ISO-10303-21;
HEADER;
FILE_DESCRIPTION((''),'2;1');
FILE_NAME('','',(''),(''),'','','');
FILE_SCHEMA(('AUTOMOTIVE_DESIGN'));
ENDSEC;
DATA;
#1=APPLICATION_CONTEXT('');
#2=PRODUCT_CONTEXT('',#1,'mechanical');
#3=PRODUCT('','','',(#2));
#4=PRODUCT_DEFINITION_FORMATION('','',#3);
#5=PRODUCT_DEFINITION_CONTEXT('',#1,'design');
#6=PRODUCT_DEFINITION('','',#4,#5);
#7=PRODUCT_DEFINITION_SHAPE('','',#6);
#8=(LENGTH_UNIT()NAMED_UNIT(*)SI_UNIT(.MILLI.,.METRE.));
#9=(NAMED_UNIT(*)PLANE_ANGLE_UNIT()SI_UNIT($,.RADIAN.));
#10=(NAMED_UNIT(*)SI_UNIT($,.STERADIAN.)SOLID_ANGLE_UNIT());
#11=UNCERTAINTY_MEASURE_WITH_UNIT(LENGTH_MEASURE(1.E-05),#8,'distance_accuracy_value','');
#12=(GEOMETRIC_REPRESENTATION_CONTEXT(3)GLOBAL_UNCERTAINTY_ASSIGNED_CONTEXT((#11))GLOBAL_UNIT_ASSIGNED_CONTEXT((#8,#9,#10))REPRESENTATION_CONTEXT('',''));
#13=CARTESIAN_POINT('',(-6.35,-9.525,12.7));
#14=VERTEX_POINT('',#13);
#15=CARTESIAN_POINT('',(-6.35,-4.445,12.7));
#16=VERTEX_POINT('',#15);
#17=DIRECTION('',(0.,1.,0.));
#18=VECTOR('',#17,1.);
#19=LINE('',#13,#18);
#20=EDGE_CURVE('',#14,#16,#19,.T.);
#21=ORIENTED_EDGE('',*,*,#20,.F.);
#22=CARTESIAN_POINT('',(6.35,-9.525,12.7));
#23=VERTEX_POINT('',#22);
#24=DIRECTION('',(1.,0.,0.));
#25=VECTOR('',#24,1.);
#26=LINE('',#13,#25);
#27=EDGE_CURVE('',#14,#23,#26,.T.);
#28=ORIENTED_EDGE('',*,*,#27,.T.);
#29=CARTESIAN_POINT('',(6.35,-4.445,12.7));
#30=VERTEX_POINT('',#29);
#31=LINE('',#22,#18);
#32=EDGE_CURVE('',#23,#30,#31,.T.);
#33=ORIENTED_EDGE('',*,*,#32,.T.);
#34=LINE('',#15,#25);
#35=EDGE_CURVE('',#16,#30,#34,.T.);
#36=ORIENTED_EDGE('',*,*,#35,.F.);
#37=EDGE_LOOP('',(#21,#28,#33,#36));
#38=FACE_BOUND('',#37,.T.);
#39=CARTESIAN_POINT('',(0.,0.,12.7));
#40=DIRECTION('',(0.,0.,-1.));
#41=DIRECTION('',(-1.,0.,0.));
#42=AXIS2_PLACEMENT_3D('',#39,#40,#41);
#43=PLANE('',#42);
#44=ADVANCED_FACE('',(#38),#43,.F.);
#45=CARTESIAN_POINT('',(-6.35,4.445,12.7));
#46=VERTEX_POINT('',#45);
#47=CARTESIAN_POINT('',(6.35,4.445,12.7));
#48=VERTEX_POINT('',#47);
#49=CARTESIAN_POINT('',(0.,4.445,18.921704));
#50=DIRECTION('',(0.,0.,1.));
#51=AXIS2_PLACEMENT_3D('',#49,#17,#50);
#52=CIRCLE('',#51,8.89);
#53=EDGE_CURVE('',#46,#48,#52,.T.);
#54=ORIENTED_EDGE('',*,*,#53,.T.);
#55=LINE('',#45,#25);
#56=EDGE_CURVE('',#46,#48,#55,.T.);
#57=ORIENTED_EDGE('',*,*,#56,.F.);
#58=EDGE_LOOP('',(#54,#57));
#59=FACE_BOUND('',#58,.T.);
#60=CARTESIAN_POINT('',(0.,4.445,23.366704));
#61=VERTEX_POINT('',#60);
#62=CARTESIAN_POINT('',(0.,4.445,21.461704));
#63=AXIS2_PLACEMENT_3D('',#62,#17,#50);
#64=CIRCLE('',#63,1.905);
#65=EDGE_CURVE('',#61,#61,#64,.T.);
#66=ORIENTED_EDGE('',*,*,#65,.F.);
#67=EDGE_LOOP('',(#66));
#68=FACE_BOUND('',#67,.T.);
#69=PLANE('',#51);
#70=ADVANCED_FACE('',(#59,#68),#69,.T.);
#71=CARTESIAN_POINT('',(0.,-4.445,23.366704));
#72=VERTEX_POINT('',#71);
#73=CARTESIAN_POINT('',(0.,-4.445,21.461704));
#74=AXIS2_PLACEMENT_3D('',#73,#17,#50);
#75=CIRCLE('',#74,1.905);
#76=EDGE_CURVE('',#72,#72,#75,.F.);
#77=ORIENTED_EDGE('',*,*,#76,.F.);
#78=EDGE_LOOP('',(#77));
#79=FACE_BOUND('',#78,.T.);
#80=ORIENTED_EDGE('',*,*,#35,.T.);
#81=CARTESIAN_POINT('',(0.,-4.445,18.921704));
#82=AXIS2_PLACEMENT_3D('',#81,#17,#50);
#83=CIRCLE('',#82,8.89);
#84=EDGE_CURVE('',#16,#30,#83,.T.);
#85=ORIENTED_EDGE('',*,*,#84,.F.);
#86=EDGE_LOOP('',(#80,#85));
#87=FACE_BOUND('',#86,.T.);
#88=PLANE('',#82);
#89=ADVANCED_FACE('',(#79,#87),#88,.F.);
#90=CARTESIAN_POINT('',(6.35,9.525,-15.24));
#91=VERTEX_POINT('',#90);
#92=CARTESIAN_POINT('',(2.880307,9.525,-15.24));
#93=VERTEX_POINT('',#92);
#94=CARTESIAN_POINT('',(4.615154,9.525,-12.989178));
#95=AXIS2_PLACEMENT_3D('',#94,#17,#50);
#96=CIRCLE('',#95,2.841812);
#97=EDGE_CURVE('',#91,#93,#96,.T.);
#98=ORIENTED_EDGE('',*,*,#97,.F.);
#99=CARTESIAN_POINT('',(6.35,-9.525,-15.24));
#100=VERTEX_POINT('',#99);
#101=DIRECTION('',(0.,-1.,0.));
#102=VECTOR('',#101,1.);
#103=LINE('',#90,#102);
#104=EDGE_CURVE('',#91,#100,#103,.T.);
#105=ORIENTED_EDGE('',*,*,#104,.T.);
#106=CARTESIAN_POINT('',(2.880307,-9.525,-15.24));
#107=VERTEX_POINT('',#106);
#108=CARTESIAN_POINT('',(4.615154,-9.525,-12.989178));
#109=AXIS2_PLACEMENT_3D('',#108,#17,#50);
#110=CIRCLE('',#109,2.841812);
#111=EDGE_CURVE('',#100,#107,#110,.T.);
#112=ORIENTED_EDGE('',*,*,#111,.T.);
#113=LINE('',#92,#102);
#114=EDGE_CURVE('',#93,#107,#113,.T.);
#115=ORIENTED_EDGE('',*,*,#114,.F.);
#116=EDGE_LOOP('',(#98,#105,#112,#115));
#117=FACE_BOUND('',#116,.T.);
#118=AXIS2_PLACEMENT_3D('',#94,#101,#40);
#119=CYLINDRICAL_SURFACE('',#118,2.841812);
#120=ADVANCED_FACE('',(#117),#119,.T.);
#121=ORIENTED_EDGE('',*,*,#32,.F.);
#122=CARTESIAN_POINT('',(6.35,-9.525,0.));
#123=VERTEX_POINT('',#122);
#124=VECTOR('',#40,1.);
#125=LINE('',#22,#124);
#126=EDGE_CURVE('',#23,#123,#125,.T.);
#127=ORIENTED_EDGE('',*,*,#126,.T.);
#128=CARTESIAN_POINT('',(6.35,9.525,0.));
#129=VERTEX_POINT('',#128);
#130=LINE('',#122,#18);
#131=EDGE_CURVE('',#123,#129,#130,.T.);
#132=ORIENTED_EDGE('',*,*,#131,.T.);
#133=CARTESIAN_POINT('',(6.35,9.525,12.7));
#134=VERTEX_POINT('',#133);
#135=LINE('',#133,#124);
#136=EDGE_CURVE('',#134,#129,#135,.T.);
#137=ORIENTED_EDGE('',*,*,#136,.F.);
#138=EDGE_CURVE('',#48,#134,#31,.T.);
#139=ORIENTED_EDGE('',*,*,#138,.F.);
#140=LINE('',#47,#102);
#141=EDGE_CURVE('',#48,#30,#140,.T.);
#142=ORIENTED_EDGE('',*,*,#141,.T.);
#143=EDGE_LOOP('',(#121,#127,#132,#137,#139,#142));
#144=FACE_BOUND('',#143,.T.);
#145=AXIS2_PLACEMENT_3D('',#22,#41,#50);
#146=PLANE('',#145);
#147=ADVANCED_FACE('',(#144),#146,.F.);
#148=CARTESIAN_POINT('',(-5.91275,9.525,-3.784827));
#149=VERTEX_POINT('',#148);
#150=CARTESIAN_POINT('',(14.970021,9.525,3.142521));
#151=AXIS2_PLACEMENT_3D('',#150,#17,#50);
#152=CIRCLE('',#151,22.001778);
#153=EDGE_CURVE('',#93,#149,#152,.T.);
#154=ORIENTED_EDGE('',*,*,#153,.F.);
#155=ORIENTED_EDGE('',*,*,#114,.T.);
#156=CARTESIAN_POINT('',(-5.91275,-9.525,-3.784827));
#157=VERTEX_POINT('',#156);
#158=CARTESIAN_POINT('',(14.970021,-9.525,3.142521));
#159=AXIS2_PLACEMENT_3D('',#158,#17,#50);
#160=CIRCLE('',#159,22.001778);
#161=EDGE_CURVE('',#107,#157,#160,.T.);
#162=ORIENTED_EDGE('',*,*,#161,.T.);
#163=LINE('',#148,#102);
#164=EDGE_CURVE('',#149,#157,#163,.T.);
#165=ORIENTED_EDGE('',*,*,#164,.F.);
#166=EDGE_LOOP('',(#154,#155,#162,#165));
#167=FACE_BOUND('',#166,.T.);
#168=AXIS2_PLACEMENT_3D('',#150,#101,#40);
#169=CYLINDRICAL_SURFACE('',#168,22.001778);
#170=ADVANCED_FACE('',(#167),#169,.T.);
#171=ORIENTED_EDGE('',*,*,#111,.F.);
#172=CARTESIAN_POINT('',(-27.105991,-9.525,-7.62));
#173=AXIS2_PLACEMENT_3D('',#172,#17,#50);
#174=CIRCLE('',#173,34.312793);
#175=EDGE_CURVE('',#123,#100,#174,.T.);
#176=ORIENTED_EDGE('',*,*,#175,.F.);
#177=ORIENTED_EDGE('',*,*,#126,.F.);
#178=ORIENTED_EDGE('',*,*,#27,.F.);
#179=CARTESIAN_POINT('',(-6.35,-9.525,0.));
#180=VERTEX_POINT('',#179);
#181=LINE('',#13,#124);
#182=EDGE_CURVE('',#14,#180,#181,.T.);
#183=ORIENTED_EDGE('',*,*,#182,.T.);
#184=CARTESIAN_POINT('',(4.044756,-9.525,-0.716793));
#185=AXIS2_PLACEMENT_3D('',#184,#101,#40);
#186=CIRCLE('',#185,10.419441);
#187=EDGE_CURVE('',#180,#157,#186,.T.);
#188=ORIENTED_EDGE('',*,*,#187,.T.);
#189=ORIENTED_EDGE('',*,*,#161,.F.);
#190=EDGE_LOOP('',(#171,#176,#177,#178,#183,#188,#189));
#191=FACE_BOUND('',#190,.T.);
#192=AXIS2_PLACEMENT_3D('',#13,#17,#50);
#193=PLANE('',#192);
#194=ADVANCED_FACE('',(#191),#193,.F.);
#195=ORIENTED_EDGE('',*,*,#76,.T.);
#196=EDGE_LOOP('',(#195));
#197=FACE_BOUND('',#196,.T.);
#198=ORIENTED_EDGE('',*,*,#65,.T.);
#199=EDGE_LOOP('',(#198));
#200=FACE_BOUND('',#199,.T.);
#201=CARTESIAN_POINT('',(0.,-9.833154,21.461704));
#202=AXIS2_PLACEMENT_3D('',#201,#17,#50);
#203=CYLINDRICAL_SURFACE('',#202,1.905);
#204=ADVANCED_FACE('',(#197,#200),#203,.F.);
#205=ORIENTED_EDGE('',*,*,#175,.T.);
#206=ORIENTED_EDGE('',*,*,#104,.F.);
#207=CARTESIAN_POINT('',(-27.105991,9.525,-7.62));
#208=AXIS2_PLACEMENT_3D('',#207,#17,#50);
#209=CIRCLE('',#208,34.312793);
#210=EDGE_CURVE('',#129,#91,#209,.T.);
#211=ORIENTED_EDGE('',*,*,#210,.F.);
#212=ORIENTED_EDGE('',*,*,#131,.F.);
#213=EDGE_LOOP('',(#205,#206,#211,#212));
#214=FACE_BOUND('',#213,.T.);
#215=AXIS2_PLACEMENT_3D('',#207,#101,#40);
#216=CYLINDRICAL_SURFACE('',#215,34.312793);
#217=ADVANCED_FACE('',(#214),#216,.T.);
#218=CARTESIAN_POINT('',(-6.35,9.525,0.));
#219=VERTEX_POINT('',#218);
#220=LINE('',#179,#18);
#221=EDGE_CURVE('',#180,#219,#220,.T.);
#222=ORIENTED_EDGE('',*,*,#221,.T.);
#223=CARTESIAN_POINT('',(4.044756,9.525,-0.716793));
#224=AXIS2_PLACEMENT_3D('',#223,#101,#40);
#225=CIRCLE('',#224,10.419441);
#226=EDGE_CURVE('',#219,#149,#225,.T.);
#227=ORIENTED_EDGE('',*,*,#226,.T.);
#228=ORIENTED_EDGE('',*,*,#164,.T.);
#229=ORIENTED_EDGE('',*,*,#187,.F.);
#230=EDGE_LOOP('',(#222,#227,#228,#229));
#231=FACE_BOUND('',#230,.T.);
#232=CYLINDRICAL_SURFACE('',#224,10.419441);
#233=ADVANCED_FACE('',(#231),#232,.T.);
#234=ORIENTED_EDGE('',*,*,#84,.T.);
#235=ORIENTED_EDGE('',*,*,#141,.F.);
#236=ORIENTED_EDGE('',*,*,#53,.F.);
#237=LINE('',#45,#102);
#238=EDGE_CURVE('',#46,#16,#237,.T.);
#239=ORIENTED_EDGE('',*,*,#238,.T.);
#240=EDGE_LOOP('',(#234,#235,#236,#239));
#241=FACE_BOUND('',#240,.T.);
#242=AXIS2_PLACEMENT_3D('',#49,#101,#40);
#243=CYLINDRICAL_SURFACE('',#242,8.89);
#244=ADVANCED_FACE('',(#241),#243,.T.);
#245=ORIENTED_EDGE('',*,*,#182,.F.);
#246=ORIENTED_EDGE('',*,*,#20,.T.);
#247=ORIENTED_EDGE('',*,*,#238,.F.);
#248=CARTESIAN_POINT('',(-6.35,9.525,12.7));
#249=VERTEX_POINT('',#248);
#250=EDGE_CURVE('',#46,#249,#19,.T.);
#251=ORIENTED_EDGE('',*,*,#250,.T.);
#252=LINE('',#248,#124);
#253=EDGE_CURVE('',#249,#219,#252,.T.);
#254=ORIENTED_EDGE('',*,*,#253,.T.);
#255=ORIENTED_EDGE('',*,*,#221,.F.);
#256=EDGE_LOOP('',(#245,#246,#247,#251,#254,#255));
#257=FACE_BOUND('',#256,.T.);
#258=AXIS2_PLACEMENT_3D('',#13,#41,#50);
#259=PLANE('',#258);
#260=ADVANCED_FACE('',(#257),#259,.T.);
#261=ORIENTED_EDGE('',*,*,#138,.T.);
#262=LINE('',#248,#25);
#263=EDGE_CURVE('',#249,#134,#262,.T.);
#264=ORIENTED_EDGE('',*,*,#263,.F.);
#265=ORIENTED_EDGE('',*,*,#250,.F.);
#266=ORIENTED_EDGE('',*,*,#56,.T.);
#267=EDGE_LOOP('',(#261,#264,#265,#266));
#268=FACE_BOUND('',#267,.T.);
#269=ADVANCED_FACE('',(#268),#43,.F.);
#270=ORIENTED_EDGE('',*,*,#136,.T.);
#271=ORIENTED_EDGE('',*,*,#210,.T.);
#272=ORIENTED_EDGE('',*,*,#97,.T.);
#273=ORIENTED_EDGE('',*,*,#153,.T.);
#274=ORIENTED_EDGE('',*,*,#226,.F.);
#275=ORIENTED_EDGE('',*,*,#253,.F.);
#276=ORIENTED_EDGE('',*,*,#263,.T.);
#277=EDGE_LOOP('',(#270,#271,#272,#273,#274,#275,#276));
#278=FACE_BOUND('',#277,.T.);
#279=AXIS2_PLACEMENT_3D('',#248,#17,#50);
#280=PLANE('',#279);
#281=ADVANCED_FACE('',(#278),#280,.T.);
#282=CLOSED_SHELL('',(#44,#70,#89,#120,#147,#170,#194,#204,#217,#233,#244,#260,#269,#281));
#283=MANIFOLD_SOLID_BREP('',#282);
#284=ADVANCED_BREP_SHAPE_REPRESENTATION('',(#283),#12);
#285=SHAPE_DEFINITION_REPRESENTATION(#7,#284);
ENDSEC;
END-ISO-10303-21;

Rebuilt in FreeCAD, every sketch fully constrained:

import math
import FreeCAD as App
import Part
import Sketcher
from FreeCAD import Vector
Q = App.Units.Quantity

doc = App.newDocument("Part")
params = doc.addObject("Spreadsheet::Sheet", "Params")
for row, (alias, value) in enumerate([
    ("sketch1_width", "0.5 in"),
    ("sketch1_height", "0.75 in"),
    ("pad1_length", "0.5 in"),
    ("sketch2_width", "0.5 in"),
    ("pad2_length", "0.175 in"),
    ("pad2_length2", "0.575 in"),
    ("sketch3_radius", "0.35 in"),
    ("sketch3_width", "0.5 in"),
    ("pad3_length", "0.35 in"),
    ("sketch4_diameter", "0.15 in"),
    ("pocket1_length", "0.35 in"),
], start=1):
    params.set(f"A{row}", alias)
    params.set(f"B{row}", "=" + value)
    params.setAlias(f"B{row}", alias)

body = doc.addObject("PartDesign::Body", "Body")

sketch1 = body.newObject("Sketcher::SketchObject", "Sketch")
sketch1.AttachmentSupport = (doc.getObject("XY_Plane"), [""])
sketch1.MapMode = "FlatFace"
sketch1.addGeometry(Part.LineSegment(Vector(-6, 10, 0), Vector(-6, -10, 0)), False)
sketch1.addGeometry(Part.LineSegment(Vector(-6, -10, 0), Vector(6, -10, 0)), False)
sketch1.addGeometry(Part.LineSegment(Vector(6, -10, 0), Vector(6, 10, 0)), False)
sketch1.addGeometry(Part.LineSegment(Vector(6, 10, 0), Vector(-6, 10, 0)), False)
sketch1.addConstraint(Sketcher.Constraint("Coincident", 0, 2, 1, 1))
sketch1.addConstraint(Sketcher.Constraint("Coincident", 1, 2, 2, 1))
sketch1.addConstraint(Sketcher.Constraint("Coincident", 2, 2, 3, 1))
sketch1.addConstraint(Sketcher.Constraint("Coincident", 3, 2, 0, 1))
sketch1.addConstraint(Sketcher.Constraint("Vertical", 0))
sketch1.addConstraint(Sketcher.Constraint("Horizontal", 1))
sketch1.addConstraint(Sketcher.Constraint("Vertical", 2))
sketch1.addConstraint(Sketcher.Constraint("Horizontal", 3))
sketch1.addConstraint(Sketcher.Constraint("Symmetric", 0, 2, 2, 2, -1, 1))
sketch1.addConstraint(Sketcher.Constraint("DistanceX", 1, 1, 1, 2, Q("0.5 in")))
sketch1.addConstraint(Sketcher.Constraint("DistanceY", 0, 2, 0, 1, Q("0.75 in")))
sketch1.setExpression("Constraints[9]", "Params.sketch1_width")
sketch1.setExpression("Constraints[10]", "Params.sketch1_height")
pad1 = body.newObject("PartDesign::Pad", "Pad")
pad1.Profile = sketch1
pad1.setExpression("Length", "Params.pad1_length")

sketch2 = body.newObject("Sketcher::SketchObject", "Sketch001")
sketch2.AttachmentSupport = (doc.getObject("XZ_Plane"), [""])
sketch2.MapMode = "FlatFace"
sketch2.AttachmentOffset = App.Placement(Vector(0, 0, -0.2 * 25.4), App.Rotation())
sketch2.addGeometry(Part.LineSegment(Vector(-6.3, 0, 0), Vector(6.3, 0, 0)), False)
sketch2.addGeometry(Part.ArcOfCircle(Part.Circle(Vector(-27.1, -7.6, 0), Vector(0, 0, 1), 34.3), math.radians(-13), math.radians(13)), False)
sketch2.addGeometry(Part.ArcOfCircle(Part.Circle(Vector(4.6, -13, 0), Vector(0, 0, 1), 2.8), math.radians(-128), math.radians(-52)), False)
sketch2.addGeometry(Part.ArcOfCircle(Part.Circle(Vector(15, 3.1, 0), Vector(0, 0, 1), 22), math.radians(-162), math.radians(-123)), False)
sketch2.addGeometry(Part.ArcOfCircle(Part.Circle(Vector(4, -0.7, 0), Vector(0, 0, 1), 10.4), math.radians(176), math.radians(197)), False)
sketch2.addConstraint(Sketcher.Constraint("Coincident", 0, 2, 1, 2))
sketch2.addConstraint(Sketcher.Constraint("Coincident", 1, 1, 2, 2))
sketch2.addConstraint(Sketcher.Constraint("Coincident", 2, 1, 3, 2))
sketch2.addConstraint(Sketcher.Constraint("Coincident", 3, 1, 4, 2))
sketch2.addConstraint(Sketcher.Constraint("Coincident", 4, 1, 0, 1))
sketch2.addConstraint(Sketcher.Constraint("Horizontal", 0))
sketch2.addConstraint(Sketcher.Constraint("Symmetric", 0, 2, 4, 1, -1, 1))
sketch2.addConstraint(Sketcher.Constraint("Horizontal", 1, 1, 2, 1))
sketch2.addConstraint(Sketcher.Constraint("Vertical", 0, 2, 1, 1))
sketch2.addConstraint(Sketcher.Constraint("DistanceX", 0, 1, 0, 2, Q("0.5 in")))
sketch2.addConstraint(Sketcher.Constraint("DistanceY", 1, 3, -1, 1, Q("0.3 in")))
sketch2.addConstraint(Sketcher.Constraint("Radius", 2, Q("2.841812 mm")))
sketch2.addConstraint(Sketcher.Constraint("Radius", 3, Q("22.001778 mm")))
sketch2.addConstraint(Sketcher.Constraint("Radius", 4, Q("10.419441 mm")))
sketch2.addConstraint(Sketcher.Constraint("Radius", 1, Q("34.312793 mm")))
sketch2.addConstraint(Sketcher.Constraint("DistanceY", 2, 3, 3, 3, Q("16.131698 mm")))
sketch2.addConstraint(Sketcher.Constraint("DistanceX", -1, 1, 3, 3, Q("14.970021 mm")))
sketch2.addConstraint(Sketcher.Constraint("DistanceX", 3, 1, -1, 1, Q("5.91275 mm")))
sketch2.setExpression("Constraints[9]", "Params.sketch2_width")
pad2 = body.newObject("PartDesign::Pad", "Pad001")
pad2.Profile = sketch2
pad2.Type = "TwoLengths"
pad2.setExpression("Length", "Params.pad2_length")
pad2.setExpression("Length2", "Params.pad2_length2")
pad2.Reversed = True

sketch3 = body.newObject("Sketcher::SketchObject", "Sketch002")
sketch3.AttachmentSupport = (doc.getObject("XZ_Plane"), [""])
sketch3.MapMode = "FlatFace"
sketch3.addGeometry(Part.LineSegment(Vector(6, 13, 0), Vector(-6, 13, 0)), False)
sketch3.addGeometry(Part.ArcOfCircle(Part.Circle(Vector(0, 19, 0), Vector(0, 0, 1), 9), math.radians(-44), math.radians(224)), False)
sketch3.addConstraint(Sketcher.Constraint("Coincident", 0, 1, 1, 1))
sketch3.addConstraint(Sketcher.Constraint("Coincident", 1, 2, 0, 2))
sketch3.addConstraint(Sketcher.Constraint("Horizontal", 0))
sketch3.addConstraint(Sketcher.Constraint("PointOnObject", 1, 3, -2))
sketch3.addConstraint(Sketcher.Constraint("Radius", 1, Q("0.35 in")))
sketch3.addConstraint(Sketcher.Constraint("DistanceX", 0, 2, 0, 1, Q("0.5 in")))
sketch3.addConstraint(Sketcher.Constraint("DistanceY", -1, 1, 0, 1, Q("0.5 in")))
sketch3.setExpression("Constraints[4]", "Params.sketch3_radius")
sketch3.setExpression("Constraints[5]", "Params.sketch3_width")
pad3 = body.newObject("PartDesign::Pad", "Pad002")
pad3.Profile = sketch3
pad3.setExpression("Length", "Params.pad3_length")
pad3.Midplane = True

sketch4 = body.newObject("Sketcher::SketchObject", "Sketch003")
sketch4.AttachmentSupport = (doc.getObject("XZ_Plane"), [""])
sketch4.MapMode = "FlatFace"
sketch4.AttachmentOffset = App.Placement(Vector(0, 0, -0.175 * 25.4), App.Rotation())
sketch4.addGeometry(Part.Circle(Vector(0, 21.5, 0), Vector(0, 0, 1), 1.9), False)
sketch4.addConstraint(Sketcher.Constraint("PointOnObject", 0, 3, -2))
sketch4.addConstraint(Sketcher.Constraint("Diameter", 0, Q("0.15 in")))
sketch4.addConstraint(Sketcher.Constraint("DistanceY", -1, 1, 0, 3, Q("21.461704 mm")))
sketch4.setExpression("Constraints[1]", "Params.sketch4_diameter")
pocket1 = body.newObject("PartDesign::Pocket", "Pocket")
pocket1.Profile = sketch4
pocket1.setExpression("Length", "Params.pocket1_length")
pocket1.Reversed = True

doc.recompute()
